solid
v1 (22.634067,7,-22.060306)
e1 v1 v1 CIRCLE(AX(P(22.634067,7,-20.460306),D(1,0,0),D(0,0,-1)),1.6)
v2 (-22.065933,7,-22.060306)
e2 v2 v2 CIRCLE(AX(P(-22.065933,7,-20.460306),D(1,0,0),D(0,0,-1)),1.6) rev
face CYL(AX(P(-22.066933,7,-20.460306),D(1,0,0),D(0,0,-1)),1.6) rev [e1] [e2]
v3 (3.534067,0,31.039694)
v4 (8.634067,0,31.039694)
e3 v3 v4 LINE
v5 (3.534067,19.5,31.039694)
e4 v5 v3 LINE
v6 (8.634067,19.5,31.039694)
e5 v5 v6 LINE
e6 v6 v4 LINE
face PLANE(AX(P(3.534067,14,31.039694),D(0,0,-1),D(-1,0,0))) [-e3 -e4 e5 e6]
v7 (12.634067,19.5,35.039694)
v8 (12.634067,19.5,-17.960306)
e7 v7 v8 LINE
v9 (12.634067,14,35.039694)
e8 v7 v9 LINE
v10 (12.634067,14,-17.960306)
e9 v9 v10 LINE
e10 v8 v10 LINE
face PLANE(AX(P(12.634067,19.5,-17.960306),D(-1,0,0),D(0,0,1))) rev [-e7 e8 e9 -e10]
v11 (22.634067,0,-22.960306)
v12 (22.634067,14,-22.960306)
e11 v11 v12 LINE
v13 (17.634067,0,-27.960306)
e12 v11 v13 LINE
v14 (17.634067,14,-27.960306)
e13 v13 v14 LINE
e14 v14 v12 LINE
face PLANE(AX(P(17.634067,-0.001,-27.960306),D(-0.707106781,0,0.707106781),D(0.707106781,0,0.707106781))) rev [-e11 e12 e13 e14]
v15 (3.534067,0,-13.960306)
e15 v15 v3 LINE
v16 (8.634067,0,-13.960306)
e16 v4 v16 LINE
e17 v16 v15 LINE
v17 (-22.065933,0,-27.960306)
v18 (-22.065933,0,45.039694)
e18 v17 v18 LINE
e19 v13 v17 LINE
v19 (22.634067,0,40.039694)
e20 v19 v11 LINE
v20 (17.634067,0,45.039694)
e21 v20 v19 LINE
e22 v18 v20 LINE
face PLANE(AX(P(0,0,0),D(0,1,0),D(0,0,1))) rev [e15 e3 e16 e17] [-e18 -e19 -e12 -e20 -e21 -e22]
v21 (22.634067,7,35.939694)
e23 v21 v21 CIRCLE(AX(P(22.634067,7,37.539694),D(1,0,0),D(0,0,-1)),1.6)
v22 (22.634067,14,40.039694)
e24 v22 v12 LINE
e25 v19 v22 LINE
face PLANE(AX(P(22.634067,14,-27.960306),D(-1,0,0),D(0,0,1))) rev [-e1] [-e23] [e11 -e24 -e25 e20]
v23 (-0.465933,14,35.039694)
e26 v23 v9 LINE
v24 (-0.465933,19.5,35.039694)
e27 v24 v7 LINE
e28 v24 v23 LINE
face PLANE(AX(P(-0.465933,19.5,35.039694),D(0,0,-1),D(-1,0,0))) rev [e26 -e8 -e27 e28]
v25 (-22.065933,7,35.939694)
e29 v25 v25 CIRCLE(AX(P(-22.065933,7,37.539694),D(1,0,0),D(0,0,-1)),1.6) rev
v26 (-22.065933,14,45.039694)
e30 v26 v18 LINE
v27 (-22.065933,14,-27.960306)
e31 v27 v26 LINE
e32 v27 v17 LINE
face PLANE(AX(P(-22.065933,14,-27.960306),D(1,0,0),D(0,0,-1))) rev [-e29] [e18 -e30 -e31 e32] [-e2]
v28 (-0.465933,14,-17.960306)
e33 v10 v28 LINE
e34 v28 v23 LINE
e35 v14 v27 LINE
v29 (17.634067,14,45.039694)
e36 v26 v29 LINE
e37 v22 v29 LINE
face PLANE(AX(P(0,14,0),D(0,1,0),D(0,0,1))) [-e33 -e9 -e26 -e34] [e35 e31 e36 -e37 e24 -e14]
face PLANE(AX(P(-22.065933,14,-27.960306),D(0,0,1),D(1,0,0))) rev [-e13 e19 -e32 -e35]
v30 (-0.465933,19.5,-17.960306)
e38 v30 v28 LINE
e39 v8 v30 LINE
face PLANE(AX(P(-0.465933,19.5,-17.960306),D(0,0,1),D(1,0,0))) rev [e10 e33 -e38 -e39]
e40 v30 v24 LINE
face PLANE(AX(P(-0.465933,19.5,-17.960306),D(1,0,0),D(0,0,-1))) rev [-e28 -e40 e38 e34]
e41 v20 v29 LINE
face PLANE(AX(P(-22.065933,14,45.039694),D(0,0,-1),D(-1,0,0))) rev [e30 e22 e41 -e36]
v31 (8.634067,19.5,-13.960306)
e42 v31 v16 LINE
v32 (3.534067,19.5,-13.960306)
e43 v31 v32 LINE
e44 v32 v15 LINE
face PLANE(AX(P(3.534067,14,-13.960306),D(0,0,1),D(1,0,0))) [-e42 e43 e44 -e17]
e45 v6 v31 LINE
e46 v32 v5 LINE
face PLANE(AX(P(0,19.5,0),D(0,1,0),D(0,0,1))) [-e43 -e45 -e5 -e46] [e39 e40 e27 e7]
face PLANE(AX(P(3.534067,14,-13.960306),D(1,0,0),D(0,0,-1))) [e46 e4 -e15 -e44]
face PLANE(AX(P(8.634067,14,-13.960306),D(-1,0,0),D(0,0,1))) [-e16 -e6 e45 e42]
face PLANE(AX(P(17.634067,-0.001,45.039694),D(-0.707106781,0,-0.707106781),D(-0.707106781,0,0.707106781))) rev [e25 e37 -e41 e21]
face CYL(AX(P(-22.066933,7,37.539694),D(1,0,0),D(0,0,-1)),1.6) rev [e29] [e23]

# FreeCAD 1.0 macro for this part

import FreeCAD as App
import Part
import Sketcher

V = App.Vector

doc = App.newDocument("Part")
body = doc.addObject("PartDesign::Body", "Body")

# Sketch on XZ plane
sketch1 = body.newObject("Sketcher::SketchObject", "Sketch")
sketch1.AttachmentSupport = (doc.getObject("XZ_Plane"), [""])
sketch1.MapMode = "FlatFace"
sketch1.addGeometry([
    Part.LineSegment(V(-22, -28, 0), V(-22, 45, 0)),  # 0
    Part.LineSegment(V(-22, 45, 0), V(23, 45, 0)),  # 1
    Part.LineSegment(V(23, 45, 0), V(23, -28, 0)),  # 2
    Part.LineSegment(V(23, -28, 0), V(-22, -28, 0)),  # 3
    Part.LineSegment(V(9, 31, 0), V(4, 31, 0)),  # 4
    Part.LineSegment(V(4, 31, 0), V(4, -14, 0)),  # 5
    Part.LineSegment(V(4, -14, 0), V(9, -14, 0)),  # 6
    Part.LineSegment(V(9, -14, 0), V(9, 31, 0)),  # 7
], False)
sketch1.addConstraint([
    Sketcher.Constraint("Coincident", 0, 2, 1, 1),
    Sketcher.Constraint("Coincident", 1, 2, 2, 1),
    Sketcher.Constraint("Coincident", 2, 2, 3, 1),
    Sketcher.Constraint("Coincident", 3, 2, 0, 1),
    Sketcher.Constraint("Coincident", 4, 2, 5, 1),
    Sketcher.Constraint("Coincident", 5, 2, 6, 1),
    Sketcher.Constraint("Coincident", 6, 2, 7, 1),
    Sketcher.Constraint("Coincident", 7, 2, 4, 1),
    Sketcher.Constraint("Vertical", 0),
    Sketcher.Constraint("Horizontal", 1),
    Sketcher.Constraint("Vertical", 2),
    Sketcher.Constraint("Horizontal", 3),
    Sketcher.Constraint("Horizontal", 4),
    Sketcher.Constraint("Vertical", 5),
    Sketcher.Constraint("Horizontal", 6),
    Sketcher.Constraint("Vertical", 7),
    Sketcher.Constraint("DistanceY", 0, 1, 0, 2, 73.0),
    Sketcher.Constraint("DistanceY", 5, 2, 5, 1, 45.0),
    Sketcher.Constraint("DistanceX", 1, 1, 1, 2, 44.7),
    Sketcher.Constraint("DistanceX", 4, 2, 4, 1, 5.1),
    Sketcher.Constraint("DistanceY", 4, 2, 1, 2, 14.0),
    Sketcher.Constraint("DistanceX", 6, 2, 2, 2, 14.0),
    Sketcher.Constraint("DistanceX", 0, 2, -1, 1, 22.065933),
    Sketcher.Constraint("DistanceY", -1, 1, 0, 2, 45.039694),
])
pad1 = body.newObject("PartDesign::Pad", "Pad")
pad1.Profile = sketch1
pad1.Length = 14
pad1.Reversed = True

# Sketch on YZ plane
sketch2 = body.newObject("Sketcher::SketchObject", "Sketch001")
sketch2.AttachmentSupport = (doc.getObject("YZ_Plane"), [""])
sketch2.MapMode = "FlatFace"
sketch2.AttachmentOffset = App.Placement(V(0, 0, 22.634067), App.Rotation())
sketch2.addGeometry(Part.Circle(V(7, 37.5, 0), V(0, 0, 1), 1.6), False)
sketch2.addConstraint([
    Sketcher.Constraint("Diameter", 0, 3.2),
    Sketcher.Constraint("DistanceX", -1, 1, 0, 3, 7.0),
    Sketcher.Constraint("DistanceY", -1, 1, 0, 3, 37.539694),
])
pocket1 = body.newObject("PartDesign::Pocket", "Pocket")
pocket1.Profile = sketch2
pocket1.Type = "UpToFirst"

# Sketch on YZ plane
sketch3 = body.newObject("Sketcher::SketchObject", "Sketch002")
sketch3.AttachmentSupport = (doc.getObject("YZ_Plane"), [""])
sketch3.MapMode = "FlatFace"
sketch3.AttachmentOffset = App.Placement(V(0, 0, 22.634067), App.Rotation())
sketch3.addGeometry(Part.Circle(V(7, -20.5, 0), V(0, 0, 1), 1.6), False)
sketch3.addConstraint([
    Sketcher.Constraint("Diameter", 0, 3.2),
    Sketcher.Constraint("DistanceX", -1, 1, 0, 3, 7.0),
    Sketcher.Constraint("DistanceY", 0, 3, -1, 1, 20.460306),
])
pocket2 = body.newObject("PartDesign::Pocket", "Pocket001")
pocket2.Profile = sketch3
pocket2.Type = "UpToFirst"

# Sketch on XZ plane
sketch4 = body.newObject("Sketcher::SketchObject", "Sketch003")
sketch4.AttachmentSupport = (doc.getObject("XZ_Plane"), [""])
sketch4.MapMode = "FlatFace"
sketch4.AttachmentOffset = App.Placement(V(0, 0, -14), App.Rotation())
sketch4.addGeometry([
    Part.LineSegment(V(0, -18, 0), V(0, 35, 0)),  # 0
    Part.LineSegment(V(0, 35, 0), V(13, 35, 0)),  # 1
    Part.LineSegment(V(13, 35, 0), V(13, -18, 0)),  # 2
    Part.LineSegment(V(13, -18, 0), V(0, -18, 0)),  # 3
    Part.LineSegment(V(9, 31, 0), V(4, 31, 0)),  # 4
    Part.LineSegment(V(4, 31, 0), V(4, -14, 0)),  # 5
    Part.LineSegment(V(4, -14, 0), V(9, -14, 0)),  # 6
    Part.LineSegment(V(9, -14, 0), V(9, 31, 0)),  # 7
], False)
sketch4.addConstraint([
    Sketcher.Constraint("Coincident", 0, 2, 1, 1),
    Sketcher.Constraint("Coincident", 1, 2, 2, 1),
    Sketcher.Constraint("Coincident", 2, 2, 3, 1),
    Sketcher.Constraint("Coincident", 3, 2, 0, 1),
    Sketcher.Constraint("Coincident", 4, 2, 5, 1),
    Sketcher.Constraint("Coincident", 5, 2, 6, 1),
    Sketcher.Constraint("Coincident", 6, 2, 7, 1),
    Sketcher.Constraint("Coincident", 7, 2, 4, 1),
    Sketcher.Constraint("Vertical", 0),
    Sketcher.Constraint("Horizontal", 1),
    Sketcher.Constraint("Vertical", 2),
    Sketcher.Constraint("Horizontal", 3),
    Sketcher.Constraint("Horizontal", 4),
    Sketcher.Constraint("Vertical", 5),
    Sketcher.Constraint("Horizontal", 6),
    Sketcher.Constraint("Vertical", 7),
    Sketcher.Constraint("DistanceY", 0, 1, 0, 2, 53.0),
    Sketcher.Constraint("DistanceY", 5, 2, 5, 1, 45.0),
    Sketcher.Constraint("DistanceX", 1, 1, 1, 2, 13.1),
    Sketcher.Constraint("DistanceX", 4, 2, 4, 1, 5.1),
    Sketcher.Constraint("DistanceX", 0, 2, 4, 2, 4.0),
    Sketcher.Constraint("DistanceY", 4, 2, 0, 2, 4.0),
    Sketcher.Constraint("DistanceX", 0, 2, -1, 1, 0.465933),
    Sketcher.Constraint("DistanceY", -1, 1, 0, 2, 35.039694),
])
pad2 = body.newObject("PartDesign::Pad", "Pad001")
pad2.Profile = sketch4
pad2.Length = 5.5
pad2.Reversed = True

# Sketch on XZ plane
sketch5 = body.newObject("Sketcher::SketchObject", "Sketch004")
sketch5.AttachmentSupport = (doc.getObject("XZ_Plane"), [""])
sketch5.MapMode = "FlatFace"
sketch5.AttachmentOffset = App.Placement(V(0, 0, -14), App.Rotation())
sketch5.addGeometry([
    Part.LineSegment(V(18, -28, 0), V(23, -23, 0)),
    Part.LineSegment(V(23, -23, 0), V(23, -28, 0)),
    Part.LineSegment(V(23, -28, 0), V(18, -28, 0)),
], False)
sketch5.addConstraint([
    Sketcher.Constraint("Coincident", 0, 2, 1, 1),
    Sketcher.Constraint("Coincident", 1, 2, 2, 1),
    Sketcher.Constraint("Coincident", 2, 2, 0, 1),
    Sketcher.Constraint("Vertical", 1),
    Sketcher.Constraint("Horizontal", 2),
    Sketcher.Constraint("Equal", 2, 1),
    Sketcher.Constraint("DistanceX", 2, 2, 2, 1, 5.0),
    Sketcher.Constraint("DistanceX", -1, 1, 0, 2, 22.634067),
    Sketcher.Constraint("DistanceY", 0, 2, -1, 1, 22.960306),
])
pocket3 = body.newObject("PartDesign::Pocket", "Pocket002")
pocket3.Profile = sketch5
pocket3.Type = "UpToFirst"
pocket3.Reversed = True

# Sketch on XZ plane
sketch6 = body.newObject("Sketcher::SketchObject", "Sketch005")
sketch6.AttachmentSupport = (doc.getObject("XZ_Plane"), [""])
sketch6.MapMode = "FlatFace"
sketch6.AttachmentOffset = App.Placement(V(0, 0, -14), App.Rotation())
sketch6.addGeometry([
    Part.LineSegment(V(23, 40, 0), V(18, 45, 0)),
    Part.LineSegment(V(18, 45, 0), V(23, 45, 0)),
    Part.LineSegment(V(23, 45, 0), V(23, 40, 0)),
], False)
sketch6.addConstraint([
    Sketcher.Constraint("Coincident", 0, 2, 1, 1),
    Sketcher.Constraint("Coincident", 1, 2, 2, 1),
    Sketcher.Constraint("Coincident", 2, 2, 0, 1),
    Sketcher.Constraint("Horizontal", 1),
    Sketcher.Constraint("Vertical", 2),
    Sketcher.Constraint("Equal", 1, 2),
    Sketcher.Constraint("DistanceX", 1, 1, 1, 2, 5.0),
    Sketcher.Constraint("DistanceX", -1, 1, 0, 2, 17.634067),
    Sketcher.Constraint("DistanceY", -1, 1, 0, 2, 45.039694),
])
pocket4 = body.newObject("PartDesign::Pocket", "Pocket003")
pocket4.Profile = sketch6
pocket4.Type = "UpToFirst"
pocket4.Reversed = True

doc.recompute()
